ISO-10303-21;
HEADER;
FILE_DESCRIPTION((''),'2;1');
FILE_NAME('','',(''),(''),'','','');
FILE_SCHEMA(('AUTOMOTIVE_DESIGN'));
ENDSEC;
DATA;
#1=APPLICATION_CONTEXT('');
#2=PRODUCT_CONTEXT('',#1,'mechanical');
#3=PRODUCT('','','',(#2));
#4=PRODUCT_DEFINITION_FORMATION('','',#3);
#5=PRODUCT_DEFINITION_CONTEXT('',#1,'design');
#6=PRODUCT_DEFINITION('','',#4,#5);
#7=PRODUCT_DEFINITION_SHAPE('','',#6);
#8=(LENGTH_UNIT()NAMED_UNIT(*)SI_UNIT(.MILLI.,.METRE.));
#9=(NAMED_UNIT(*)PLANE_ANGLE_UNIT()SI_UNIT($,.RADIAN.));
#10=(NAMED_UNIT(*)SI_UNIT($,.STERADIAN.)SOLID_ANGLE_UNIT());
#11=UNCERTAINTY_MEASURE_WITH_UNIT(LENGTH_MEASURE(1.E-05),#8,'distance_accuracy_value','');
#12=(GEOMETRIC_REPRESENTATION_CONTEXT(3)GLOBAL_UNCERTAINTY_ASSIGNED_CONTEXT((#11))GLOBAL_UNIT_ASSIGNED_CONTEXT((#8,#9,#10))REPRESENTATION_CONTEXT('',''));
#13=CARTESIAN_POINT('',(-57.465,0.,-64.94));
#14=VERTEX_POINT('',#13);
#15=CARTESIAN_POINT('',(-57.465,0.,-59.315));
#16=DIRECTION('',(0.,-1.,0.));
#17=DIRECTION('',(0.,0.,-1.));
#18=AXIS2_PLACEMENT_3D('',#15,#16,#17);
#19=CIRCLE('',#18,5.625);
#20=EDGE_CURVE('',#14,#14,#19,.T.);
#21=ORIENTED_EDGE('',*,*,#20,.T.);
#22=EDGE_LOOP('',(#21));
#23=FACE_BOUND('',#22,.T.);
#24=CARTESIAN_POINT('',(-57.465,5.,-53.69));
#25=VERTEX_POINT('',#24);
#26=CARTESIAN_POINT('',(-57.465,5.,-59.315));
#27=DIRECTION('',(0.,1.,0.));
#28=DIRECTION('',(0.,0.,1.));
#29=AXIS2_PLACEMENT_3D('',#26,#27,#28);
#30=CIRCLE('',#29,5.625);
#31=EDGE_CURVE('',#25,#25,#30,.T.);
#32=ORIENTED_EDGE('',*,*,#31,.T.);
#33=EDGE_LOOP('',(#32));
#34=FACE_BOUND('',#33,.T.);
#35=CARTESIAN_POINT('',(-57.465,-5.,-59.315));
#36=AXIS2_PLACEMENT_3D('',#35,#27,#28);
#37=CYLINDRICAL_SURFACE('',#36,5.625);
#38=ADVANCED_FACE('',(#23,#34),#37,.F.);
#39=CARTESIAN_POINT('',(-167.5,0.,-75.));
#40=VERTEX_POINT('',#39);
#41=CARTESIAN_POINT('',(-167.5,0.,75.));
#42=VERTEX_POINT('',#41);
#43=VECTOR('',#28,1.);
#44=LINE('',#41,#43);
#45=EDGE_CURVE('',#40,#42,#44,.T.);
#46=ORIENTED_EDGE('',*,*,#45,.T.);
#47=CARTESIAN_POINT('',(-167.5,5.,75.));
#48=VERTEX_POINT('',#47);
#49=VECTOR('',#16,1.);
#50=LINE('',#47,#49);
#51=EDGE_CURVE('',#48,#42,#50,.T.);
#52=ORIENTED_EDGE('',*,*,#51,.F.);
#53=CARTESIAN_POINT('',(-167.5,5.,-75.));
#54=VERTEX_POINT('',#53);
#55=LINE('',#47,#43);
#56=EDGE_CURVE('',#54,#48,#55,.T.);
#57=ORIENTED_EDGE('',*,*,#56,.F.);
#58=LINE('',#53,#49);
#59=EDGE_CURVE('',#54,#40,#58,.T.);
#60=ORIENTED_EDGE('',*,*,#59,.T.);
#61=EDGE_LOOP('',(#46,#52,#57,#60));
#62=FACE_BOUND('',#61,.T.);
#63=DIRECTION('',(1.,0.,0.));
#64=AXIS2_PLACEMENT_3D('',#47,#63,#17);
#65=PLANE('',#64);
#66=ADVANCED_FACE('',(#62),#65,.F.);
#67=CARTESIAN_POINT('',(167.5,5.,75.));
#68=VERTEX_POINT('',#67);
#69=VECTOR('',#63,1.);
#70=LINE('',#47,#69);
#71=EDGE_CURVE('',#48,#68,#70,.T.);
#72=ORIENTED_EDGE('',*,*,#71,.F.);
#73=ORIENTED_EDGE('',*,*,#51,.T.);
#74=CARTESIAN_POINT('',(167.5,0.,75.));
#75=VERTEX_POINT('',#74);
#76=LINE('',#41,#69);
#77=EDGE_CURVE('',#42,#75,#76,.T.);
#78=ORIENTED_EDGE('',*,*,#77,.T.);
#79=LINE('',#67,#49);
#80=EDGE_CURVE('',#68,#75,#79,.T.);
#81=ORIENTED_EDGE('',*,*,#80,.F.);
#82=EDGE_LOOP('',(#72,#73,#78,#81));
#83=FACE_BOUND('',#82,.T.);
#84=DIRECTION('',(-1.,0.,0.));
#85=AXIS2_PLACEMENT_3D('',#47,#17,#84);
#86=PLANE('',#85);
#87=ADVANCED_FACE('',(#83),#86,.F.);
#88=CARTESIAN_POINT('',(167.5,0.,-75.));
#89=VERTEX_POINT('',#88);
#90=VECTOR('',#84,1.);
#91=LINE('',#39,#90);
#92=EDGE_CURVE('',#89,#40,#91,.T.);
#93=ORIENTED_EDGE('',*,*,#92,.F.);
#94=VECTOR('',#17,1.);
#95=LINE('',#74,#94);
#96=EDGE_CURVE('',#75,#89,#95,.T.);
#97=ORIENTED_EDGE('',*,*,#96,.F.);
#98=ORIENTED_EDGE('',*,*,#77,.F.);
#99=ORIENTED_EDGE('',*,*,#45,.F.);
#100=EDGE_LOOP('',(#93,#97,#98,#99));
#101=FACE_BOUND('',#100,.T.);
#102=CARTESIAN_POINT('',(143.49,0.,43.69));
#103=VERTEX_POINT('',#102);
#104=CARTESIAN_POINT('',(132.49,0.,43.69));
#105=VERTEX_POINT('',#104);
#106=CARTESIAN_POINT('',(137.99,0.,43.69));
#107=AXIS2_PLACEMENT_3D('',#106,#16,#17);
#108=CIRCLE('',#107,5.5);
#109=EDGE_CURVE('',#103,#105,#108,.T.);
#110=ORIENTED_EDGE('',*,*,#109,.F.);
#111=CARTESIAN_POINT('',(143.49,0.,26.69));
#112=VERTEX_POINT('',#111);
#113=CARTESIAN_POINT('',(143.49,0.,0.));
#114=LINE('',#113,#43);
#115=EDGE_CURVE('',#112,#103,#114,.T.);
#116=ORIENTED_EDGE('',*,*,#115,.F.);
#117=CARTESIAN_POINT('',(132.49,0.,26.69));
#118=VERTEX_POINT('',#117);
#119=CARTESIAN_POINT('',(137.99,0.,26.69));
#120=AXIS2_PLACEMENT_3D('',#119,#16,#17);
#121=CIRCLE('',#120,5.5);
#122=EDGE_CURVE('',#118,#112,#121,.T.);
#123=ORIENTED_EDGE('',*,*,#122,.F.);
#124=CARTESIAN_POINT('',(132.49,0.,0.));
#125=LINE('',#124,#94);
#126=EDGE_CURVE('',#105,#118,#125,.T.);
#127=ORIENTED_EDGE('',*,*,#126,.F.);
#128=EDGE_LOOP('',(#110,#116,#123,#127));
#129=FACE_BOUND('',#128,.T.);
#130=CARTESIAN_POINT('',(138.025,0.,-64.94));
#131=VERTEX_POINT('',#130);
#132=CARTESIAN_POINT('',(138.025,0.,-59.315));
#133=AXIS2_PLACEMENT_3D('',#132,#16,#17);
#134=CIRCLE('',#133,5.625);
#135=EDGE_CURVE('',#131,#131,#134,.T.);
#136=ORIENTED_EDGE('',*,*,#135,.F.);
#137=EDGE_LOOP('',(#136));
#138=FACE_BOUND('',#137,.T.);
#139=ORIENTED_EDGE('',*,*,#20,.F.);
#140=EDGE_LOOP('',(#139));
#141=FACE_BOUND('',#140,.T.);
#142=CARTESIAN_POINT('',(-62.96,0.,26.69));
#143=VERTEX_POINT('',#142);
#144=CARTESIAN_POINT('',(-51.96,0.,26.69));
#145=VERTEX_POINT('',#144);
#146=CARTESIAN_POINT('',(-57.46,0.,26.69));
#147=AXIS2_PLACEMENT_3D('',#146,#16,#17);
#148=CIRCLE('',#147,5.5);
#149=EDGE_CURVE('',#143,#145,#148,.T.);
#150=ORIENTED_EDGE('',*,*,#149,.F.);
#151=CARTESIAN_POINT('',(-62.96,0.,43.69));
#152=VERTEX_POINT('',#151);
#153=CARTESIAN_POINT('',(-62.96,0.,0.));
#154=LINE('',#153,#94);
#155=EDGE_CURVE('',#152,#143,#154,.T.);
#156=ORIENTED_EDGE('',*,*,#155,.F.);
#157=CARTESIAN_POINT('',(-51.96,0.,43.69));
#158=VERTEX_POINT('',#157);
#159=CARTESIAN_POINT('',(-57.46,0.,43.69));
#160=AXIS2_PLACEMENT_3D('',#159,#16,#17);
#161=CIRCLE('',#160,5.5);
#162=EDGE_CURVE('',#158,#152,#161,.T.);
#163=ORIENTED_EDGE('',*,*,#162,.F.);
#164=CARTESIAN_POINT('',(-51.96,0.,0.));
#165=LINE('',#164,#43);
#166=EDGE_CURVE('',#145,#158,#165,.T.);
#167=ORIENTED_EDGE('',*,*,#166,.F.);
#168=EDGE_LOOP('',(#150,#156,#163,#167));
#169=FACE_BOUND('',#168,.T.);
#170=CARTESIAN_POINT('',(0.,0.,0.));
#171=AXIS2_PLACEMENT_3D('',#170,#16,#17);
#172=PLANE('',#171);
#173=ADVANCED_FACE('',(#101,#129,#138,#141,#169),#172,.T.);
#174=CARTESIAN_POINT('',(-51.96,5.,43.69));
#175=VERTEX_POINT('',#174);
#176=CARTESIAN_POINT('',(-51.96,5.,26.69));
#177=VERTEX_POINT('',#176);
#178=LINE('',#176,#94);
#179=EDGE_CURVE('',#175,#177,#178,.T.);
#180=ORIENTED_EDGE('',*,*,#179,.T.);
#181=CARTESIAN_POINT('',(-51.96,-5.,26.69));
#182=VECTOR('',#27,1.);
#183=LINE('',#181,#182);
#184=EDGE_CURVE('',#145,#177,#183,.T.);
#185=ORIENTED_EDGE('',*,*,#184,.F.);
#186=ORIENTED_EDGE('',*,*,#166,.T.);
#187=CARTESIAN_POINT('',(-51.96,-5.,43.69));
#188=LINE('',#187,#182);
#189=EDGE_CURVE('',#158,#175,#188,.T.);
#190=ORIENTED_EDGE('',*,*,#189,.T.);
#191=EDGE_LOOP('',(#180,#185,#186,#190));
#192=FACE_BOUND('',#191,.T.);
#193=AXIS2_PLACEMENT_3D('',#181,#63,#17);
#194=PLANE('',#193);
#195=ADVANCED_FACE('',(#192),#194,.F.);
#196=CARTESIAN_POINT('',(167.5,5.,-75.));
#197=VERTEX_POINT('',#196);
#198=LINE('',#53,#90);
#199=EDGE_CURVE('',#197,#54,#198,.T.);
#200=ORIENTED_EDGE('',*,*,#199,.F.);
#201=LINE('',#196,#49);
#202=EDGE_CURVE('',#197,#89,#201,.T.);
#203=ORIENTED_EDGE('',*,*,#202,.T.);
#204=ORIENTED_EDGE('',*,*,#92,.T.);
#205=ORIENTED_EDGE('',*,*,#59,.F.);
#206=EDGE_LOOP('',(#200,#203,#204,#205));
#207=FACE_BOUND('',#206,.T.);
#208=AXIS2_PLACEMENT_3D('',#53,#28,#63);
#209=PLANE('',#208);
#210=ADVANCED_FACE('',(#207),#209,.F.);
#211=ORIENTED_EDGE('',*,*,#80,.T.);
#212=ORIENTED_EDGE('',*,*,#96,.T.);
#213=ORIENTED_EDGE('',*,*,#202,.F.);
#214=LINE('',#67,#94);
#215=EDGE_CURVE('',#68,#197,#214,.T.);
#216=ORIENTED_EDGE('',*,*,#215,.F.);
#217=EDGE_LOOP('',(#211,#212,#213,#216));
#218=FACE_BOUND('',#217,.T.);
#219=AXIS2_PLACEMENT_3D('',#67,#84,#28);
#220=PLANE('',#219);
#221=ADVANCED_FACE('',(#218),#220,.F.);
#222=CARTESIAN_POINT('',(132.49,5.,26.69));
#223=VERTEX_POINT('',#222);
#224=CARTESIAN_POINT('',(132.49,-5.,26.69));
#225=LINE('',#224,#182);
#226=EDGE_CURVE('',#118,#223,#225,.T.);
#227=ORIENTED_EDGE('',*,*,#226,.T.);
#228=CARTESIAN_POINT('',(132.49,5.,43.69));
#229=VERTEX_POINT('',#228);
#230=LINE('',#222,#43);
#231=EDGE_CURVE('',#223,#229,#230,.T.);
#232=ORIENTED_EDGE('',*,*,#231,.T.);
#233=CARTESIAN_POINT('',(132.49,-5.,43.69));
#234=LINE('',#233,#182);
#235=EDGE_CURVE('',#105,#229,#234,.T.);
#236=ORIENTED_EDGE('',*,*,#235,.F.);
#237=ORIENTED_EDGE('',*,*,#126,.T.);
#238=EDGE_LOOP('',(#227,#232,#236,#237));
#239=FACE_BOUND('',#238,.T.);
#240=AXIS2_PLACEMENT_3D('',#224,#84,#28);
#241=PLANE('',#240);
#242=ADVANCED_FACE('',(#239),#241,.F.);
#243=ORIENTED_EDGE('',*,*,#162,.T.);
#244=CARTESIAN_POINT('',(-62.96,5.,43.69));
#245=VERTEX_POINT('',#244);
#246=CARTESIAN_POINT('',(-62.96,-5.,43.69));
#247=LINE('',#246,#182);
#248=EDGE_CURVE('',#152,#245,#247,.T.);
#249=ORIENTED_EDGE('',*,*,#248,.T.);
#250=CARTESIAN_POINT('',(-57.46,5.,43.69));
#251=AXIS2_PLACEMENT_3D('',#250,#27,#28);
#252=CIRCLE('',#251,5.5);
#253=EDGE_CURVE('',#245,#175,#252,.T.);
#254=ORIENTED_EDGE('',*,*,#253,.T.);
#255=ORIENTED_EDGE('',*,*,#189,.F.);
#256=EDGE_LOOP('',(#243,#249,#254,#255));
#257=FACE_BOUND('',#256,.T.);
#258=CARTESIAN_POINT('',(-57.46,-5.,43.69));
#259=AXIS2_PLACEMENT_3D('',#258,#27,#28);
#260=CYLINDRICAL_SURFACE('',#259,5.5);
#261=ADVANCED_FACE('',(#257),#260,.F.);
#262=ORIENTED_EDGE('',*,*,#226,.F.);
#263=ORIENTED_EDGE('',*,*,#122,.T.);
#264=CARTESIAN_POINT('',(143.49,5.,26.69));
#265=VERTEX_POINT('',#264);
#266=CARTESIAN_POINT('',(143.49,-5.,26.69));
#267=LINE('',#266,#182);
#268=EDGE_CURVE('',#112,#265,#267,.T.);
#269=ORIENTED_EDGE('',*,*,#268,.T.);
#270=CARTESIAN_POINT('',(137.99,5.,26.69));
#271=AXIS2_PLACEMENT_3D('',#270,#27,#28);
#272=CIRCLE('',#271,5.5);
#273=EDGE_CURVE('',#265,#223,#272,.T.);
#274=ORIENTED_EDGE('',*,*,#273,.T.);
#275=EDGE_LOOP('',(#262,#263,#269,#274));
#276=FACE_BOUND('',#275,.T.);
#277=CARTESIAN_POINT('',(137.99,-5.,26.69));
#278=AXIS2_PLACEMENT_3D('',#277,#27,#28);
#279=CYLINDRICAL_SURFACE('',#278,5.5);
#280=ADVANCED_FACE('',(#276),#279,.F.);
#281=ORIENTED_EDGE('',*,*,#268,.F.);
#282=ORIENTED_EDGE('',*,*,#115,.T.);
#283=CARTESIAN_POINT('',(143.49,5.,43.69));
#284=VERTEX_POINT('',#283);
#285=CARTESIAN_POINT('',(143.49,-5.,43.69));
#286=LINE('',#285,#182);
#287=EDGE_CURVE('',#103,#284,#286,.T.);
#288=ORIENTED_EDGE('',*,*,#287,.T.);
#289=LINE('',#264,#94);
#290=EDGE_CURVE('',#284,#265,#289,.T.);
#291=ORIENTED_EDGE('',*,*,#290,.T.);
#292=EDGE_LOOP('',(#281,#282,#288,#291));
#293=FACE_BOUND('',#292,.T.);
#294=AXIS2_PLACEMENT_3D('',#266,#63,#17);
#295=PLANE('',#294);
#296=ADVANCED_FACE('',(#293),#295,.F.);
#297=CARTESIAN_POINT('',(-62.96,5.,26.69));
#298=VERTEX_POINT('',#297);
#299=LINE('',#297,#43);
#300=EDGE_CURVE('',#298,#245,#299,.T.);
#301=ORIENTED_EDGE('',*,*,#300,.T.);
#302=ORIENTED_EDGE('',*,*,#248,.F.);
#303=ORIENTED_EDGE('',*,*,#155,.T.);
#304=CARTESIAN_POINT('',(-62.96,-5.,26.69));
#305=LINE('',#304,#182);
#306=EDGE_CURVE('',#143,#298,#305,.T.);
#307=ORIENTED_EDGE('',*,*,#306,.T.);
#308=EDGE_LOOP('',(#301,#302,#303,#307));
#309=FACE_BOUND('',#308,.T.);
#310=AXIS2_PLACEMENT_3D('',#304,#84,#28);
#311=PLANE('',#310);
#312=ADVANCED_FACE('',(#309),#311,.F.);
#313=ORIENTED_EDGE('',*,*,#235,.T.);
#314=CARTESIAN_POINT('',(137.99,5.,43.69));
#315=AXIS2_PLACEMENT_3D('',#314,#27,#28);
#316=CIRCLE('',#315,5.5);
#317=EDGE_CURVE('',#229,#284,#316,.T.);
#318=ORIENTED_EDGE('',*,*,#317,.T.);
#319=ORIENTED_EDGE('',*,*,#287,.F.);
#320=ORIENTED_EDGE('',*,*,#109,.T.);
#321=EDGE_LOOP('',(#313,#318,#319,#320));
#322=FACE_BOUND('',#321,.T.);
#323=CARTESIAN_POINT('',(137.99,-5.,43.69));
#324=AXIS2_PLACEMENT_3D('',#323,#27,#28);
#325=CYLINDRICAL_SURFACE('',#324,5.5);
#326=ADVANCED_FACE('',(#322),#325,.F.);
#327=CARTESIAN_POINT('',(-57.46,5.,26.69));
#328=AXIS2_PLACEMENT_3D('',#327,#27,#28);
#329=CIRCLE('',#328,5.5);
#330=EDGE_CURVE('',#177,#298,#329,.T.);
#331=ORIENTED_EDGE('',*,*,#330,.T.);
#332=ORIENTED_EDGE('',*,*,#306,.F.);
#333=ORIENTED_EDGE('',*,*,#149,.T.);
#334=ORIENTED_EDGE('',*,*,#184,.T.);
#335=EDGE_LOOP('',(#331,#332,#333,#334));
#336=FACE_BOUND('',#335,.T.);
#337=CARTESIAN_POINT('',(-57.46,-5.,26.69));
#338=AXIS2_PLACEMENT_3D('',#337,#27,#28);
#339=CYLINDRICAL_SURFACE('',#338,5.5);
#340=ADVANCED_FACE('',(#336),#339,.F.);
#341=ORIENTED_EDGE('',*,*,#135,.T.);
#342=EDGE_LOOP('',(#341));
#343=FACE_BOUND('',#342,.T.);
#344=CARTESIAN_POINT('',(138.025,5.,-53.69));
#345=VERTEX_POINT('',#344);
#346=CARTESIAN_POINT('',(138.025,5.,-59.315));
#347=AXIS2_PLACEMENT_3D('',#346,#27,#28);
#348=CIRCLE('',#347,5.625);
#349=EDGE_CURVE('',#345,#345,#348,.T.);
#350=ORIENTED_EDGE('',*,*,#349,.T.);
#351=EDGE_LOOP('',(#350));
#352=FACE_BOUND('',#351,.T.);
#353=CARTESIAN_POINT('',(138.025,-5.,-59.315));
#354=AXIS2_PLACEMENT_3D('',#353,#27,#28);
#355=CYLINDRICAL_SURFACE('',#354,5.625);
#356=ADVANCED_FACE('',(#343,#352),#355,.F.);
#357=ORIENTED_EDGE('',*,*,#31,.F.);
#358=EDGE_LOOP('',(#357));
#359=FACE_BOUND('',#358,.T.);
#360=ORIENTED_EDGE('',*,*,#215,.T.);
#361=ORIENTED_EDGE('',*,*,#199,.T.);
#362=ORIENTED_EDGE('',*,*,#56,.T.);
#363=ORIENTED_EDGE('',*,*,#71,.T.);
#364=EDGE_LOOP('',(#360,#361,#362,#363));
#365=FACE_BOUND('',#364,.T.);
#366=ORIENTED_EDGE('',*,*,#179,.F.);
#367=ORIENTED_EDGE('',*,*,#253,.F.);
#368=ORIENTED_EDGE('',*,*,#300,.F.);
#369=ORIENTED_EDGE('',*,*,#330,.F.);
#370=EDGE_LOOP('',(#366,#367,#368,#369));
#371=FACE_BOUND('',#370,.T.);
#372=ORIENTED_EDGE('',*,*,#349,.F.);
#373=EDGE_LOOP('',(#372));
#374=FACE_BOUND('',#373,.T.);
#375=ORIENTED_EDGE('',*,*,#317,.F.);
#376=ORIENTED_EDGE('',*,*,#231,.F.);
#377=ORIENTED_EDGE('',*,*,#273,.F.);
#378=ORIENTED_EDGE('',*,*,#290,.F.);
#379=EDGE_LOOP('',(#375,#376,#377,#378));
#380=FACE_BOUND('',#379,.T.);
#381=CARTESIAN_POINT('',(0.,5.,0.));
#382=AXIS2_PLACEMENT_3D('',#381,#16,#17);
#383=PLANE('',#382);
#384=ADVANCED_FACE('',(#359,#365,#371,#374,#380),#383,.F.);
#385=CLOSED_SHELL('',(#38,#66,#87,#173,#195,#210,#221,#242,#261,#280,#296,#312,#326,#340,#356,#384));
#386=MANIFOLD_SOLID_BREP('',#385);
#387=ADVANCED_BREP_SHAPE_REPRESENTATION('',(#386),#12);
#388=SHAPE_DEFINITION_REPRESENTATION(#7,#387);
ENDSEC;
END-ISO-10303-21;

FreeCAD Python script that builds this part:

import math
import FreeCAD as App
import Part
import Sketcher

doc = App.newDocument("Part")
body = doc.addObject("PartDesign::Body", "Body")

# Sketch on XZ plane
sketch1 = body.newObject("Sketcher::SketchObject", "Sketch")
sketch1.AttachmentSupport = (doc.getObject("XZ_Plane"), [""])
sketch1.MapMode = "FlatFace"
sketch1.addGeometry([
    Part.LineSegment(App.Vector(-167.5, -75, 0), App.Vector(-167.5, 75, 0)),
    Part.LineSegment(App.Vector(-167.5, 75, 0), App.Vector(167.5, 75, 0)),
    Part.LineSegment(App.Vector(167.5, 75, 0), App.Vector(167.5, -75, 0)),
    Part.LineSegment(App.Vector(167.5, -75, 0), App.Vector(-167.5, -75, 0)),
], False)
sketch1.addConstraint([
    Sketcher.Constraint("Coincident", 0, 2, 1, 1),
    Sketcher.Constraint("Coincident", 1, 2, 2, 1),
    Sketcher.Constraint("Coincident", 2, 2, 3, 1),
    Sketcher.Constraint("Coincident", 3, 2, 0, 1),
    Sketcher.Constraint("Vertical", 0),
    Sketcher.Constraint("Horizontal", 1),
    Sketcher.Constraint("Vertical", 2),
    Sketcher.Constraint("Horizontal", 3),
    Sketcher.Constraint("Symmetric", 0, 2, 2, 2, -1, 1),
    Sketcher.Constraint("DistanceX", 1, 1, 1, 2, 335.0),
    Sketcher.Constraint("DistanceY", 0, 1, 0, 2, 150.0),
])
pad1 = body.newObject("PartDesign::Pad", "Pad")
pad1.Profile = sketch1
pad1.Length = 5
pad1.Reversed = True

# Sketch on XZ plane
sketch2 = body.newObject("Sketcher::SketchObject", "Sketch001")
sketch2.AttachmentSupport = (doc.getObject("XZ_Plane"), [""])
sketch2.MapMode = "FlatFace"
sketch2.AttachmentOffset = App.Placement(App.Vector(0, 0, -5), App.Rotation())
sketch2.addGeometry([
    Part.Circle(App.Vector(138.025, -59.315, 0), App.Vector(0, 0, 1), 5.625),  # 0
    Part.Circle(App.Vector(-57.465, -59.315, 0), App.Vector(0, 0, 1), 5.625),  # 1
    Part.LineSegment(App.Vector(143.49, 43.69, 0), App.Vector(143.49, 26.69, 0)),  # 2
    Part.ArcOfCircle(Part.Circle(App.Vector(137.99, 26.69, 0), App.Vector(0, 0, 1), 5.5), math.radians(180), math.radians(360)),  # 3
    Part.LineSegment(App.Vector(132.49, 26.69, 0), App.Vector(132.49, 43.69, 0)),  # 4
    Part.ArcOfCircle(Part.Circle(App.Vector(137.99, 43.69, 0), App.Vector(0, 0, 1), 5.5), math.radians(0), math.radians(180)),  # 5
    Part.LineSegment(App.Vector(-51.96, 43.69, 0), App.Vector(-51.96, 26.69, 0)),  # 6
    Part.ArcOfCircle(Part.Circle(App.Vector(-57.46, 26.69, 0), App.Vector(0, 0, 1), 5.5), math.radians(180), math.radians(360)),  # 7
    Part.LineSegment(App.Vector(-62.96, 26.69, 0), App.Vector(-62.96, 43.69, 0)),  # 8
    Part.ArcOfCircle(Part.Circle(App.Vector(-57.46, 43.69, 0), App.Vector(0, 0, 1), 5.5), math.radians(0), math.radians(180)),  # 9
], False)
sketch2.addConstraint([
    Sketcher.Constraint("Tangent", 2, 2, 3, 2),
    Sketcher.Constraint("Tangent", 3, 1, 4, 1),
    Sketcher.Constraint("Tangent", 4, 2, 5, 2),
    Sketcher.Constraint("Tangent", 5, 1, 2, 1),
    Sketcher.Constraint("Tangent", 6, 2, 7, 2),
    Sketcher.Constraint("Tangent", 7, 1, 8, 1),
    Sketcher.Constraint("Tangent", 8, 2, 9, 2),
    Sketcher.Constraint("Tangent", 9, 1, 6, 1),
    Sketcher.Constraint("Vertical", 2),
    Sketcher.Constraint("Vertical", 4),
    Sketcher.Constraint("Vertical", 6),
    Sketcher.Constraint("Vertical", 8),
    Sketcher.Constraint("Equal", 0, 1),
    Sketcher.Constraint("Equal", 5, 7),
    Sketcher.Constraint("Horizontal", 0, 3, 1, 3),
    Sketcher.Constraint("Horizontal", 3, 3, 7, 3),
    Sketcher.Constraint("Horizontal", 5, 3, 9, 3),
    Sketcher.Constraint("Radius", 3, 5.5),
    Sketcher.Constraint("Diameter", 0, 11.25),
    Sketcher.Constraint("DistanceY", 2, 2, 2, 1, 17.0),
    Sketcher.Constraint("DistanceX", -1, 1, 3, 3, 137.99),
    Sketcher.Constraint("DistanceY", -1, 1, 3, 3, 26.69),
    Sketcher.Constraint("DistanceX", 7, 3, -1, 1, 57.46),
    Sketcher.Constraint("DistanceX", 1, 3, 0, 3, 195.49),
    Sketcher.Constraint("DistanceX", -1, 1, 0, 3, 138.025),
    Sketcher.Constraint("DistanceY", 0, 3, -1, 1, 59.315),
])
pocket1 = body.newObject("PartDesign::Pocket", "Pocket")
pocket1.Profile = sketch2
pocket1.Length = 10
pocket1.Reversed = True

doc.recompute()
